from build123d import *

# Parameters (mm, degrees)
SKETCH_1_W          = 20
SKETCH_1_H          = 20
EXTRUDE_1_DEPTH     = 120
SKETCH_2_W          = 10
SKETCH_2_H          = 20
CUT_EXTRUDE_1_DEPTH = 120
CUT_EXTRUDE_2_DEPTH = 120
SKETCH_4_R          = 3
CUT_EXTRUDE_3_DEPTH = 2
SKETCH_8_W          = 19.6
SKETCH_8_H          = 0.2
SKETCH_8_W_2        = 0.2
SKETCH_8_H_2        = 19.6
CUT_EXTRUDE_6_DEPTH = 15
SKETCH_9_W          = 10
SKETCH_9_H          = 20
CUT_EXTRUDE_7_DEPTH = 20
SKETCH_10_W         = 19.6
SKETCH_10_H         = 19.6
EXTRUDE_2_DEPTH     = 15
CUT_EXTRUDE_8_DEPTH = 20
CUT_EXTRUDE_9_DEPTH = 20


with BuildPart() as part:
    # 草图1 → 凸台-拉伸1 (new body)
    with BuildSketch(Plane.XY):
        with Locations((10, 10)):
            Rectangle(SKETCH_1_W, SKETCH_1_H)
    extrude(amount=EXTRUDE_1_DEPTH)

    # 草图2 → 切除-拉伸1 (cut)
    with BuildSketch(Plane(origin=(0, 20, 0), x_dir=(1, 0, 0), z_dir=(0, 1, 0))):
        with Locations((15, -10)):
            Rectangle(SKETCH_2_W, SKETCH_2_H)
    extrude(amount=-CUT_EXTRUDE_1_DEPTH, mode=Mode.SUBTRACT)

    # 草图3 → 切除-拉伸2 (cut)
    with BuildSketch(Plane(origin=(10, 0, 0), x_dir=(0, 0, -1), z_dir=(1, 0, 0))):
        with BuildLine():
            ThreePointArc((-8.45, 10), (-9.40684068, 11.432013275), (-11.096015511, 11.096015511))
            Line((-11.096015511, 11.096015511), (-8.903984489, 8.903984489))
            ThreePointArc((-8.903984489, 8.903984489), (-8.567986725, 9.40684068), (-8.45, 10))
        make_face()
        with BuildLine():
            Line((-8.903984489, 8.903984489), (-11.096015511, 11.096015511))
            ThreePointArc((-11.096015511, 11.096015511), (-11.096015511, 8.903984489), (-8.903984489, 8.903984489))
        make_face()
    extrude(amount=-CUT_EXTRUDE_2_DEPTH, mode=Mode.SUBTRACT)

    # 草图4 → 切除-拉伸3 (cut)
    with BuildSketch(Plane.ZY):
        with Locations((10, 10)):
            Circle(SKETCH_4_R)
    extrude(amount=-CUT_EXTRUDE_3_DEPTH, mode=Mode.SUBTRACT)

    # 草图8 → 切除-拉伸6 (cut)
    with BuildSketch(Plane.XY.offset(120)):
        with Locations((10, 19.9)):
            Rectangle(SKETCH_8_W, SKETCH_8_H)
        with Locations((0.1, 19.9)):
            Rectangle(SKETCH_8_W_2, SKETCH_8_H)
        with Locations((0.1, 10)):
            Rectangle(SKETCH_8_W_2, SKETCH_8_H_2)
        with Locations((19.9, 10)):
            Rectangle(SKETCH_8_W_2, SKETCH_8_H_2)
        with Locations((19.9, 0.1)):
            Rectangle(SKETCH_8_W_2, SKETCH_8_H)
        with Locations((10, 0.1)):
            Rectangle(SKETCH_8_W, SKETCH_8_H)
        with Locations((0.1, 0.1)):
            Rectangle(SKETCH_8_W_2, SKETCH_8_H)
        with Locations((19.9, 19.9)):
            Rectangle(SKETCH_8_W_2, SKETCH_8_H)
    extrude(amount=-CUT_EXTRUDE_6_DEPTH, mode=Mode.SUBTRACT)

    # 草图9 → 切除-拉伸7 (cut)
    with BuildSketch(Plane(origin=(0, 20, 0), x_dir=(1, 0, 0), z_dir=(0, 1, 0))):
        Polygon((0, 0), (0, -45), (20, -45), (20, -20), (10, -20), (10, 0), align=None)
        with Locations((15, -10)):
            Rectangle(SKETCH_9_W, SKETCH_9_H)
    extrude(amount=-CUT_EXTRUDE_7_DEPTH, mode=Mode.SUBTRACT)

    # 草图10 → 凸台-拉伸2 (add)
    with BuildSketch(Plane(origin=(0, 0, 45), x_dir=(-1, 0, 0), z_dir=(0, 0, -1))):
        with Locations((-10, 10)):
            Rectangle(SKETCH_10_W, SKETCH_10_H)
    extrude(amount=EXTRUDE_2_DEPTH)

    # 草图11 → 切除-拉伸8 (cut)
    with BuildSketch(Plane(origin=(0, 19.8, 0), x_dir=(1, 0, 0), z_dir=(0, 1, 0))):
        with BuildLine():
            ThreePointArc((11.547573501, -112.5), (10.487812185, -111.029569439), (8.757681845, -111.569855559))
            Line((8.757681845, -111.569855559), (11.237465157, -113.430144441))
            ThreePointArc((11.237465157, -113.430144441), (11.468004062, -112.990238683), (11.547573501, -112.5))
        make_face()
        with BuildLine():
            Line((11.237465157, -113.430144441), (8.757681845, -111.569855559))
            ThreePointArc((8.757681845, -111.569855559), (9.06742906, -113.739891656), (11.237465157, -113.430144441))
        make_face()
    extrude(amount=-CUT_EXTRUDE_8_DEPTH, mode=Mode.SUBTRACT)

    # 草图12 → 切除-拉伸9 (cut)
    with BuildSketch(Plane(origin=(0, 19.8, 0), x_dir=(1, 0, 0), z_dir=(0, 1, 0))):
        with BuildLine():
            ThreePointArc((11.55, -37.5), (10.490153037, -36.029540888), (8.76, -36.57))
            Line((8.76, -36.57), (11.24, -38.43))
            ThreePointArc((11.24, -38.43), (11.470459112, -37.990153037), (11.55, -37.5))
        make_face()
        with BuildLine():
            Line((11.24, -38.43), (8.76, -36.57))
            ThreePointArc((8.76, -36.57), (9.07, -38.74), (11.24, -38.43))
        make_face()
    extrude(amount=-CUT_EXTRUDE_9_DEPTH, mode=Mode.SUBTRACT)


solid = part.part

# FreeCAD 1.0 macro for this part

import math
import FreeCAD as App
import Part
import Sketcher
Q = App.Units.Quantity

doc = App.newDocument("Part")
body = doc.addObject("PartDesign::Body", "Body")

sketch1 = body.newObject("Sketcher::SketchObject", "Sketch")
sketch1.AttachmentSupport = (doc.getObject("XY_Plane"), [""])
sketch1.MapMode = "FlatFace"
sketch1.addGeometry([
    Part.LineSegment(App.Vector(0, 20, 0), App.Vector(0, 0, 0)),
    Part.LineSegment(App.Vector(0, 0, 0), App.Vector(20, 0, 0)),
    Part.LineSegment(App.Vector(20, 0, 0), App.Vector(20, 20, 0)),
    Part.LineSegment(App.Vector(20, 20, 0), App.Vector(0, 20, 0)),
], False)
sketch1.addConstraint([
    Sketcher.Constraint("Coincident", 0, 2, 1, 1),
    Sketcher.Constraint("Coincident", 1, 2, 2, 1),
    Sketcher.Constraint("Coincident", 2, 2, 3, 1),
    Sketcher.Constraint("Coincident", 3, 2, 0, 1),
    Sketcher.Constraint("Vertical", 0),
    Sketcher.Constraint("Horizontal", 1),
    Sketcher.Constraint("Vertical", 2),
    Sketcher.Constraint("Horizontal", 3),
    Sketcher.Constraint("Coincident", 0, 2, -1, 1),
    Sketcher.Constraint("Equal", 3, 0),
    Sketcher.Constraint("DistanceX", 1, 1, 1, 2, Q("20 mm")),
])
pad1 = body.newObject("PartDesign::Pad", "Pad")
pad1.Profile = sketch1
pad1.Length = 120

sketch2 = body.newObject("Sketcher::SketchObject", "Sketch001")
sketch2.AttachmentSupport = (doc.getObject("XZ_Plane"), [""])
sketch2.MapMode = "FlatFace"
sketch2.AttachmentOffset = App.Placement(App.Vector(0, 0, -20), App.Rotation())
sketch2.addGeometry([
    Part.LineSegment(App.Vector(10, 0, 0), App.Vector(10, 20, 0)),
    Part.LineSegment(App.Vector(10, 20, 0), App.Vector(20, 20, 0)),
    Part.LineSegment(App.Vector(20, 20, 0), App.Vector(20, 0, 0)),
    Part.LineSegment(App.Vector(20, 0, 0), App.Vector(10, 0, 0)),
], False)
sketch2.addConstraint([
    Sketcher.Constraint("Coincident", 0, 2, 1, 1),
    Sketcher.Constraint("Coincident", 1, 2, 2, 1),
    Sketcher.Constraint("Coincident", 2, 2, 3, 1),
    Sketcher.Constraint("Coincident", 3, 2, 0, 1),
    Sketcher.Constraint("Vertical", 0),
    Sketcher.Constraint("Horizontal", 1),
    Sketcher.Constraint("Vertical", 2),
    Sketcher.Constraint("Horizontal", 3),
    Sketcher.Constraint("PointOnObject", 2, 2, -1),
    Sketcher.Constraint("DistanceX", 1, 1, 1, 2, Q("10 mm")),
    Sketcher.Constraint("DistanceY", 0, 1, 0, 2, Q("20 mm")),
    Sketcher.Constraint("DistanceX", -1, 1, 0, 2, Q("10 mm")),
])
pocket1 = body.newObject("PartDesign::Pocket", "Pocket")
pocket1.Profile = sketch2
pocket1.Length = 120
pocket1.Reversed = True

sketch3 = body.newObject("Sketcher::SketchObject", "Sketch002")
sketch3.AttachmentSupport = (doc.getObject("YZ_Plane"), [""])
sketch3.MapMode = "FlatFace"
sketch3.AttachmentOffset = App.Placement(App.Vector(0, 0, 10), App.Rotation())
sketch3.addGeometry([
    Part.ArcOfCircle(Part.Circle(App.Vector(10, 10, 0), App.Vector(0, 0, 1), 1.55), math.radians(-90), math.radians(45)),
    Part.ArcOfCircle(Part.Circle(App.Vector(10, 10, 0), App.Vector(0, 0, 1), 1.55), math.radians(45), math.radians(225)),
    Part.ArcOfCircle(Part.Circle(App.Vector(10, 10, 0), App.Vector(0, 0, 1), 1.55), math.radians(-135), math.radians(-90)),
], False)
sketch3.addConstraint([
    Sketcher.Constraint("Tangent", 0, 2, 1, 1),
    Sketcher.Constraint("Tangent", 1, 2, 2, 1),
    Sketcher.Constraint("Tangent", 2, 2, 0, 1),
    Sketcher.Constraint("Vertical", 1, 3, 2, 2),
    Sketcher.Constraint("Radius", 0, Q("1.55 mm")),
    Sketcher.Constraint("DistanceX", -1, 1, 0, 3, Q("10 mm")),
    Sketcher.Constraint("DistanceY", -1, 1, 0, 3, Q("10 mm")),
    Sketcher.Constraint("DistanceX", 1, 2, 0, 2, Q("2.192031 mm")),
    Sketcher.Constraint("DistanceX", -1, 1, 0, 2, Q("11.096016 mm")),
])
pocket2 = body.newObject("PartDesign::Pocket", "Pocket001")
pocket2.Profile = sketch3
pocket2.Length = 120

sketch4 = body.newObject("Sketcher::SketchObject", "Sketch003")
sketch4.AttachmentSupport = (doc.getObject("YZ_Plane"), [""])
sketch4.MapMode = "FlatFace"
sketch4.addGeometry(Part.Circle(App.Vector(10, 10, 0), App.Vector(0, 0, 1), 3), False)
sketch4.addConstraint([
    Sketcher.Constraint("Diameter", 0, Q("6 mm")),
    Sketcher.Constraint("DistanceX", -1, 1, 0, 3, Q("10 mm")),
    Sketcher.Constraint("DistanceY", -1, 1, 0, 3, Q("10 mm")),
])
pocket3 = body.newObject("PartDesign::Pocket", "Pocket002")
pocket3.Profile = sketch4
pocket3.Length = 2
pocket3.Reversed = True

sketch5 = body.newObject("Sketcher::SketchObject", "Sketch004")
sketch5.AttachmentSupport = (doc.getObject("XY_Plane"), [""])
sketch5.MapMode = "FlatFace"
sketch5.AttachmentOffset = App.Placement(App.Vector(0, 0, 120), App.Rotation())
sketch5.addGeometry([
    Part.LineSegment(App.Vector(20, 0, 0), App.Vector(20, 20, 0)),
    Part.LineSegment(App.Vector(20, 20, 0), App.Vector(0, 20, 0)),
    Part.LineSegment(App.Vector(0, 20, 0), App.Vector(0, 0, 0)),
    Part.LineSegment(App.Vector(0, 0, 0), App.Vector(20, 0, 0)),
    Part.LineSegment(App.Vector(0.2, 19.8, 0), App.Vector(19.8, 19.8, 0)),
    Part.LineSegment(App.Vector(19.8, 19.8, 0), App.Vector(19.8, 0.2, 0)),
    Part.LineSegment(App.Vector(19.8, 0.2, 0), App.Vector(0.2, 0.2, 0)),
    Part.LineSegment(App.Vector(0.2, 0.2, 0), App.Vector(0.2, 19.8, 0)),
], False)
sketch5.addConstraint([
    Sketcher.Constraint("Coincident", 0, 2, 1, 1),
    Sketcher.Constraint("Coincident", 1, 2, 2, 1),
    Sketcher.Constraint("Coincident", 2, 2, 3, 1),
    Sketcher.Constraint("Coincident", 3, 2, 0, 1),
    Sketcher.Constraint("Coincident", 4, 2, 5, 1),
    Sketcher.Constraint("Coincident", 5, 2, 6, 1),
    Sketcher.Constraint("Coincident", 6, 2, 7, 1),
    Sketcher.Constraint("Coincident", 7, 2, 4, 1),
    Sketcher.Constraint("Vertical", 0),
    Sketcher.Constraint("Horizontal", 1),
    Sketcher.Constraint("Vertical", 2),
    Sketcher.Constraint("Horizontal", 3),
    Sketcher.Constraint("Horizontal", 4),
    Sketcher.Constraint("Vertical", 5),
    Sketcher.Constraint("Horizontal", 6),
    Sketcher.Constraint("Vertical", 7),
    Sketcher.Constraint("Coincident", 2, 2, -1, 1),
    Sketcher.Constraint("Equal", 3, 0),
    Sketcher.Constraint("Equal", 6, 5),
    Sketcher.Constraint("DistanceX", 1, 2, 1, 1, Q("20 mm")),
    Sketcher.Constraint("DistanceX", 4, 1, 4, 2, Q("19.6 mm")),
    Sketcher.Constraint("DistanceX", -1, 1, 4, 2, Q("19.8 mm")),
    Sketcher.Constraint("DistanceY", -1, 1, 4, 2, Q("19.8 mm")),
])
pocket4 = body.newObject("PartDesign::Pocket", "Pocket003")
pocket4.Profile = sketch5
pocket4.Length = 15

sketch6 = body.newObject("Sketcher::SketchObject", "Sketch005")
sketch6.AttachmentSupport = (doc.getObject("XZ_Plane"), [""])
sketch6.MapMode = "FlatFace"
sketch6.AttachmentOffset = App.Placement(App.Vector(0, 0, -20), App.Rotation())
sketch6.addGeometry([
    Part.LineSegment(App.Vector(0, 0, 0), App.Vector(0, 45, 0)),
    Part.LineSegment(App.Vector(0, 45, 0), App.Vector(20, 45, 0)),
    Part.LineSegment(App.Vector(20, 45, 0), App.Vector(20, 0, 0)),
    Part.LineSegment(App.Vector(20, 0, 0), App.Vector(0, 0, 0)),
], False)
sketch6.addConstraint([
    Sketcher.Constraint("Coincident", 0, 2, 1, 1),
    Sketcher.Constraint("Coincident", 1, 2, 2, 1),
    Sketcher.Constraint("Coincident", 2, 2, 3, 1),
    Sketcher.Constraint("Coincident", 3, 2, 0, 1),
    Sketcher.Constraint("Vertical", 0),
    Sketcher.Constraint("Horizontal", 1),
    Sketcher.Constraint("Vertical", 2),
    Sketcher.Constraint("Horizontal", 3),
    Sketcher.Constraint("Coincident", 3, 2, -1, 1),
    Sketcher.Constraint("DistanceX", 1, 1, 1, 2, Q("20 mm")),
    Sketcher.Constraint("DistanceY", 0, 1, 0, 2, Q("45 mm")),
])
pocket5 = body.newObject("PartDesign::Pocket", "Pocket004")
pocket5.Profile = sketch6
pocket5.Length = 20
pocket5.Reversed = True

sketch7 = body.newObject("Sketcher::SketchObject", "Sketch006")
sketch7.AttachmentSupport = (doc.getObject("XY_Plane"), [""])
sketch7.MapMode = "FlatFace"
sketch7.AttachmentOffset = App.Placement(App.Vector(0, 0, 45), App.Rotation())
sketch7.addGeometry([
    Part.LineSegment(App.Vector(19.8, 19.8, 0), App.Vector(19.8, 0.2, 0)),
    Part.LineSegment(App.Vector(19.8, 0.2, 0), App.Vector(0.2, 0.2, 0)),
    Part.LineSegment(App.Vector(0.2, 0.2, 0), App.Vector(0.2, 19.8, 0)),
    Part.LineSegment(App.Vector(0.2, 19.8, 0), App.Vector(19.8, 19.8, 0)),
], False)
sketch7.addConstraint([
    Sketcher.Constraint("Coincident", 0, 2, 1, 1),
    Sketcher.Constraint("Coincident", 1, 2, 2, 1),
    Sketcher.Constraint("Coincident", 2, 2, 3, 1),
    Sketcher.Constraint("Coincident", 3, 2, 0, 1),
    Sketcher.Constraint("Vertical", 0),
    Sketcher.Constraint("Horizontal", 1),
    Sketcher.Constraint("Vertical", 2),
    Sketcher.Constraint("Horizontal", 3),
    Sketcher.Constraint("Equal", 3, 0),
    Sketcher.Constraint("DistanceX", 1, 2, 1, 1, Q("19.6 mm")),
    Sketcher.Constraint("DistanceX", -1, 1, 0, 2, Q("19.8 mm")),
    Sketcher.Constraint("DistanceY", -1, 1, 0, 2, Q("0.2 mm")),
])
pad2 = body.newObject("PartDesign::Pad", "Pad001")
pad2.Profile = sketch7
pad2.Length = 15
pad2.Reversed = True

sketch8 = body.newObject("Sketcher::SketchObject", "Sketch007")
sketch8.AttachmentSupport = (doc.getObject("XZ_Plane"), [""])
sketch8.MapMode = "FlatFace"
sketch8.AttachmentOffset = App.Placement(App.Vector(0, 0, -19.8), App.Rotation())
sketch8.addGeometry([
    Part.ArcOfCircle(Part.Circle(App.Vector(9.997574, 112.5, 0), App.Vector(0, 0, 1), 1.55), math.radians(-143.123428), math.radians(0)),
    Part.ArcOfCircle(Part.Circle(App.Vector(9.997574, 112.5, 0), App.Vector(0, 0, 1), 1.55), math.radians(36.876572), math.radians(216.876572)),
    Part.ArcOfCircle(Part.Circle(App.Vector(9.997574, 112.5, 0), App.Vector(0, 0, 1), 1.55), math.radians(0), math.radians(36.876572)),
], False)
sketch8.addConstraint([
    Sketcher.Constraint("Tangent", 0, 1, 1, 2),
    Sketcher.Constraint("Tangent", 1, 1, 2, 2),
    Sketcher.Constraint("Tangent", 2, 1, 0, 2),
    Sketcher.Constraint("Horizontal", 1, 3, 2, 1),
    Sketcher.Constraint("Radius", 0, Q("1.55 mm")),
    Sketcher.Constraint("DistanceY", -1, 1, 0, 3, Q("112.5 mm")),
    Sketcher.Constraint("DistanceX", -1, 1, 0, 1, Q("8.757682 mm")),
    Sketcher.Constraint("DistanceX", 0, 1, 0, 3, Q("1.239892 mm")),
    Sketcher.Constraint("DistanceX", 2, 3, 1, 1, Q("1.239892 mm")),
])
pocket6 = body.newObject("PartDesign::Pocket", "Pocket005")
pocket6.Profile = sketch8
pocket6.Length = 20
pocket6.Reversed = True

sketch9 = body.newObject("Sketcher::SketchObject", "Sketch008")
sketch9.AttachmentSupport = (doc.getObject("XZ_Plane"), [""])
sketch9.MapMode = "FlatFace"
sketch9.AttachmentOffset = App.Placement(App.Vector(0, 0, -19.8), App.Rotation())
sketch9.addGeometry([
    Part.ArcOfCircle(Part.Circle(App.Vector(10, 37.5, 0), App.Vector(0, 0, 1), 1.55), math.radians(-143.130102), math.radians(0)),
    Part.ArcOfCircle(Part.Circle(App.Vector(10, 37.5, 0), App.Vector(0, 0, 1), 1.55), math.radians(36.869898), math.radians(216.869898)),
    Part.ArcOfCircle(Part.Circle(App.Vector(10, 37.5, 0), App.Vector(0, 0, 1), 1.55), math.radians(0), math.radians(36.869898)),
], False)
sketch9.addConstraint([
    Sketcher.Constraint("Tangent", 0, 1, 1, 2),
    Sketcher.Constraint("Tangent", 1, 1, 2, 2),
    Sketcher.Constraint("Tangent", 2, 1, 0, 2),
    Sketcher.Constraint("Horizontal", 1, 3, 2, 1),
    Sketcher.Constraint("Radius", 0, Q("1.55 mm")),
    Sketcher.Constraint("DistanceX", -1, 1, 0, 3, Q("10 mm")),
    Sketcher.Constraint("DistanceY", -1, 1, 0, 3, Q("37.5 mm")),
    Sketcher.Constraint("DistanceX", -1, 1, 0, 1, Q("8.76 mm")),
    Sketcher.Constraint("DistanceX", -1, 1, 1, 1, Q("11.24 mm")),
])
pocket7 = body.newObject("PartDesign::Pocket", "Pocket006")
pocket7.Profile = sketch9
pocket7.Length = 20
pocket7.Reversed = True

doc.recompute()
